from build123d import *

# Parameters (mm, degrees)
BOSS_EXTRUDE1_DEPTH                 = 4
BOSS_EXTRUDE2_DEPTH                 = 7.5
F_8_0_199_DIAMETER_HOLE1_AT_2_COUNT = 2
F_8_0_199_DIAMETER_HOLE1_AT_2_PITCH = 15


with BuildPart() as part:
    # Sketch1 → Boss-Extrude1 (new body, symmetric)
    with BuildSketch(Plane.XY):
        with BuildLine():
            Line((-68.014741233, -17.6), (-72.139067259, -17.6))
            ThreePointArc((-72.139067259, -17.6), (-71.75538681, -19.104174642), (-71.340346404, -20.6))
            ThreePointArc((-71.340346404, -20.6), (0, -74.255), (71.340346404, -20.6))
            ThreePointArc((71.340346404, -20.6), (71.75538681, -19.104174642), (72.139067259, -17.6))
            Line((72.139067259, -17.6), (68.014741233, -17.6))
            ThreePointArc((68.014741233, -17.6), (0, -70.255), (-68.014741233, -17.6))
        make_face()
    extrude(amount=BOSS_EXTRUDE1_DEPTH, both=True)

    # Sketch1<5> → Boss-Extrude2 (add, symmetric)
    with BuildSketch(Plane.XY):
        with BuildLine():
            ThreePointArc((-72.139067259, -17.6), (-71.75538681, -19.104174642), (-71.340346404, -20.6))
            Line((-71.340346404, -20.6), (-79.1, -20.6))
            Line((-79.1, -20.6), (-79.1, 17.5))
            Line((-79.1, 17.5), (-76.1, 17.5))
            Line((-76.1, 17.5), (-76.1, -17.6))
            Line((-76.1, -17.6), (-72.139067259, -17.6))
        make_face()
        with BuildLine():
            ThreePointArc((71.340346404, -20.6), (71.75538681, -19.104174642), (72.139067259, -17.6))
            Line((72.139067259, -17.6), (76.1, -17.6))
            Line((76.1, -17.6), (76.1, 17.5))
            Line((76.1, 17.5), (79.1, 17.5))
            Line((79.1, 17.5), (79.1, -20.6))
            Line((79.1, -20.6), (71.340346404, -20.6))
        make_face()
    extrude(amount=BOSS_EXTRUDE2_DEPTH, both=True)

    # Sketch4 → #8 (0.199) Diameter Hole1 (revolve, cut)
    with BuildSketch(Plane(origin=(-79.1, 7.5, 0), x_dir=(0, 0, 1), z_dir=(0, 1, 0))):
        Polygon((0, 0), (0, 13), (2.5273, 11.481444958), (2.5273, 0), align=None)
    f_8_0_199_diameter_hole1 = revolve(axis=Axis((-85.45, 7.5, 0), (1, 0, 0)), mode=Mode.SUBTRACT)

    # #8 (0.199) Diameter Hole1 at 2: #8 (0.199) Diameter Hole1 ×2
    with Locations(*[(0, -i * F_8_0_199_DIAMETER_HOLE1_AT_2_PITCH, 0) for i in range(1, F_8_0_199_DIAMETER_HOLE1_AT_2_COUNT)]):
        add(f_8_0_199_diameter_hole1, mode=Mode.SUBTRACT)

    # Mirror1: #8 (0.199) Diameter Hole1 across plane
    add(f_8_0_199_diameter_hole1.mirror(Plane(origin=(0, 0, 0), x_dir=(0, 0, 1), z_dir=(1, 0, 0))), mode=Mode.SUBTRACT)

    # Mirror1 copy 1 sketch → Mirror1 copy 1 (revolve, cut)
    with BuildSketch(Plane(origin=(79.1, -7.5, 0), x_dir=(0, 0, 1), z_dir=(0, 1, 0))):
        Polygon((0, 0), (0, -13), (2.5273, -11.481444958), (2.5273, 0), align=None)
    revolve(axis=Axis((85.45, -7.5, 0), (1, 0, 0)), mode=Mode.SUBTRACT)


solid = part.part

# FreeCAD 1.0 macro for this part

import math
import FreeCAD as App
import Part
import Sketcher

V = App.Vector
Q = App.Units.Quantity

doc = App.newDocument("Part")
body = doc.addObject("PartDesign::Body", "Body")

# Sketch on XY plane
sketch1 = body.newObject("Sketcher::SketchObject", "Sketch")
sketch1.AttachmentSupport = (doc.getObject("XY_Plane"), [""])
sketch1.MapMode = "FlatFace"
sketch1.addGeometry(Part.LineSegment(V(-68, -17.6, 0), V(-72.1, -17.6, 0)), False)
sketch1.addGeometry(Part.ArcOfCircle(Part.Circle(V(0, 0, 0), V(0, 0, 1), 74.3), math.radians(-166.29), math.radians(-163.89)), False)
sketch1.addGeometry(Part.ArcOfCircle(Part.Circle(V(0, 0, 0), V(0, 0, 1), 74.3), math.radians(-164), math.radians(-16)), False)
sketch1.addGeometry(Part.ArcOfCircle(Part.Circle(V(0, 0, 0), V(0, 0, 1), 74.3), math.radians(-16.11), math.radians(-13.71)), False)
sketch1.addGeometry(Part.LineSegment(V(72.1, -17.6, 0), V(68, -17.6, 0)), False)
sketch1.addGeometry(Part.ArcOfCircle(Part.Circle(V(0, 0, 0), V(0, 0, 1), 70.3), math.radians(-165), math.radians(-15)), False)
sketch1.addConstraint(Sketcher.Constraint("Coincident", 0, 2, 1, 1))
sketch1.addConstraint(Sketcher.Constraint("Tangent", 1, 2, 2, 1))
sketch1.addConstraint(Sketcher.Constraint("Tangent", 2, 2, 3, 1))
sketch1.addConstraint(Sketcher.Constraint("Coincident", 3, 2, 4, 1))
sketch1.addConstraint(Sketcher.Constraint("Coincident", 4, 2, 5, 2))
sketch1.addConstraint(Sketcher.Constraint("Coincident", 5, 1, 0, 1))
sketch1.addConstraint(Sketcher.Constraint("Horizontal", 0))
sketch1.addConstraint(Sketcher.Constraint("Horizontal", 4))
sketch1.addConstraint(Sketcher.Constraint("Coincident", 1, 3, -1, 1))
sketch1.addConstraint(Sketcher.Constraint("Coincident", 3, 3, -1, 1))
sketch1.addConstraint(Sketcher.Constraint("Coincident", 5, 3, -1, 1))
sketch1.addConstraint(Sketcher.Constraint("Horizontal", 1, 2, 2, 2))
sketch1.addConstraint(Sketcher.Constraint("Horizontal", 0, 2, 3, 2))
sketch1.addConstraint(Sketcher.Constraint("Radius", 1, Q("74.255 mm")))
sketch1.addConstraint(Sketcher.Constraint("Radius", 5, Q("70.255 mm")))
sketch1.addConstraint(Sketcher.Constraint("DistanceY", 1, 2, 0, 2, Q("3 mm")))
sketch1.addConstraint(Sketcher.Constraint("DistanceY", 0, 2, -1, 1, Q("17.6 mm")))
pad1 = body.newObject("PartDesign::Pad", "Pad")
pad1.Profile = sketch1
pad1.Length = 8
pad1.Midplane = True

# Sketch on XY plane
sketch2 = body.newObject("Sketcher::SketchObject", "Sketch001")
sketch2.AttachmentSupport = (doc.getObject("XY_Plane"), [""])
sketch2.MapMode = "FlatFace"
sketch2.addGeometry(Part.ArcOfCircle(Part.Circle(V(0, 0, 0), V(0, 0, 1), 74.3), math.radians(-166.29), math.radians(-163.89)), False)
sketch2.addGeometry(Part.LineSegment(V(-72.1, -17.6, 0), V(-76.1, -17.6, 0)), False)
sketch2.addGeometry(Part.LineSegment(V(-76.1, -17.6, 0), V(-76.1, 17.5, 0)), False)
sketch2.addGeometry(Part.LineSegment(V(-76.1, 17.5, 0), V(-79.1, 17.5, 0)), False)
sketch2.addGeometry(Part.LineSegment(V(-79.1, 17.5, 0), V(-79.1, -20.6, 0)), False)
sketch2.addGeometry(Part.LineSegment(V(-79.1, -20.6, 0), V(-71.3, -20.6, 0)), False)
sketch2.addGeometry(Part.ArcOfCircle(Part.Circle(V(0, 0, 0), V(0, 0, 1), 74.3), math.radians(-16.11), math.radians(-13.71)), False)
sketch2.addGeometry(Part.LineSegment(V(71.3, -20.6, 0), V(79.1, -20.6, 0)), False)
sketch2.addGeometry(Part.LineSegment(V(79.1, -20.6, 0), V(79.1, 17.5, 0)), False)
sketch2.addGeometry(Part.LineSegment(V(79.1, 17.5, 0), V(76.1, 17.5, 0)), False)
sketch2.addGeometry(Part.LineSegment(V(76.1, 17.5, 0), V(76.1, -17.6, 0)), False)
sketch2.addGeometry(Part.LineSegment(V(76.1, -17.6, 0), V(72.1, -17.6, 0)), False)
sketch2.addConstraint(Sketcher.Constraint("Coincident", 0, 1, 1, 1))
sketch2.addConstraint(Sketcher.Constraint("Coincident", 1, 2, 2, 1))
sketch2.addConstraint(Sketcher.Constraint("Coincident", 2, 2, 3, 1))
sketch2.addConstraint(Sketcher.Constraint("Coincident", 3, 2, 4, 1))
sketch2.addConstraint(Sketcher.Constraint("Coincident", 4, 2, 5, 1))
sketch2.addConstraint(Sketcher.Constraint("Coincident", 5, 2, 0, 2))
sketch2.addConstraint(Sketcher.Constraint("Coincident", 6, 1, 7, 1))
sketch2.addConstraint(Sketcher.Constraint("Coincident", 7, 2, 8, 1))
sketch2.addConstraint(Sketcher.Constraint("Coincident", 8, 2, 9, 1))
sketch2.addConstraint(Sketcher.Constraint("Coincident", 9, 2, 10, 1))
sketch2.addConstraint(Sketcher.Constraint("Coincident", 10, 2, 11, 1))
sketch2.addConstraint(Sketcher.Constraint("Coincident", 11, 2, 6, 2))
sketch2.addConstraint(Sketcher.Constraint("Horizontal", 1))
sketch2.addConstraint(Sketcher.Constraint("Vertical", 2))
sketch2.addConstraint(Sketcher.Constraint("Horizontal", 3))
sketch2.addConstraint(Sketcher.Constraint("Vertical", 4))
sketch2.addConstraint(Sketcher.Constraint("Horizontal", 5))
sketch2.addConstraint(Sketcher.Constraint("Horizontal", 7))
sketch2.addConstraint(Sketcher.Constraint("Vertical", 8))
sketch2.addConstraint(Sketcher.Constraint("Horizontal", 9))
sketch2.addConstraint(Sketcher.Constraint("Vertical", 10))
sketch2.addConstraint(Sketcher.Constraint("Horizontal", 11))
sketch2.addConstraint(Sketcher.Constraint("Coincident", 0, 3, -1, 1))
sketch2.addConstraint(Sketcher.Constraint("Coincident", 6, 3, -1, 1))
sketch2.addConstraint(Sketcher.Constraint("Equal", 0, 6))
sketch2.addConstraint(Sketcher.Constraint("Symmetric", 4, 2, 7, 2, -2))
sketch2.addConstraint(Sketcher.Constraint("Symmetric", 2, 2, 9, 2, -2))
sketch2.addConstraint(Sketcher.Constraint("Horizontal", 1, 2, 10, 2))
sketch2.addConstraint(Sketcher.Constraint("DistanceX", 3, 2, 3, 1, Q("3 mm")))
sketch2.addConstraint(Sketcher.Constraint("DistanceY", 2, 1, 2, 2, Q("35.1 mm")))
sketch2.addConstraint(Sketcher.Constraint("DistanceY", 4, 2, 4, 1, Q("38.1 mm")))
sketch2.addConstraint(Sketcher.Constraint("Radius", 0, Q("74.255 mm")))
sketch2.addConstraint(Sketcher.Constraint("DistanceY", 0, 1, -1, 1, Q("17.6 mm")))
sketch2.addConstraint(Sketcher.Constraint("DistanceX", 1, 2, -1, 1, Q("76.1 mm")))
pad2 = body.newObject("PartDesign::Pad", "Pad001")
pad2.Profile = sketch2
pad2.Length = 15
pad2.Midplane = True

# Sketch on XZ plane
sketch3 = body.newObject("Sketcher::SketchObject", "Sketch002")
sketch3.AttachmentSupport = (doc.getObject("XZ_Plane"), [""])
sketch3.MapMode = "FlatFace"
sketch3.AttachmentOffset = App.Placement(V(0, 0, -7.5), App.Rotation())
sketch3.addGeometry(Part.LineSegment(V(-66.1, 0, 0), V(-79.1, 0, 0)), False)
sketch3.addGeometry(Part.LineSegment(V(-79.1, 0, 0), V(-79.1, 2.5, 0)), False)
sketch3.addGeometry(Part.LineSegment(V(-79.1, 2.5, 0), V(-67.6, 2.5, 0)), False)
sketch3.addGeometry(Part.LineSegment(V(-67.6, 2.5, 0), V(-66.1, 0, 0)), False)
sketch3.addConstraint(Sketcher.Constraint("Coincident", 0, 2, 1, 1))
sketch3.addConstraint(Sketcher.Constraint("Coincident", 1, 2, 2, 1))
sketch3.addConstraint(Sketcher.Constraint("Coincident", 2, 2, 3, 1))
sketch3.addConstraint(Sketcher.Constraint("Coincident", 3, 2, 0, 1))
sketch3.addConstraint(Sketcher.Constraint("Horizontal", 0))
sketch3.addConstraint(Sketcher.Constraint("Vertical", 1))
sketch3.addConstraint(Sketcher.Constraint("Horizontal", 2))
sketch3.addConstraint(Sketcher.Constraint("PointOnObject", 0, 2, -1))
sketch3.addConstraint(Sketcher.Constraint("DistanceX", 0, 2, 0, 1, Q("13 mm")))
sketch3.addConstraint(Sketcher.Constraint("Angle", 3, Q("-59 deg")))
sketch3.addConstraint(Sketcher.Constraint("DistanceX", 0, 2, -1, 1, Q("79.1 mm")))
sketch3.addConstraint(Sketcher.Constraint("DistanceY", 1, 1, 1, 2, Q("2.5273 mm")))
groove = body.newObject("PartDesign::Groove", "Groove")
groove.Profile = sketch3
groove.ReferenceAxis = (sketch3, ["H_Axis"])
groove.Angle = 360
doc.recompute()

linearpattern = body.newObject("PartDesign::LinearPattern", "LinearPattern")
linearpattern.Originals = [groove]
linearpattern.Direction = (doc.getObject("Y_Axis"), [""])
linearpattern.Mode = "offset"
linearpattern.Offset = 15
linearpattern.Occurrences = 2
linearpattern.Reversed = True
body.Tip = linearpattern
doc.recompute()

mirrored = body.newObject("PartDesign::Mirrored", "Mirrored")
mirrored.Originals = [groove]
mirrored.MirrorPlane = (doc.getObject("YZ_Plane"), [""])
body.Tip = mirrored

# Sketch on XZ plane
sketch4 = body.newObject("Sketcher::SketchObject", "Sketch003")
sketch4.AttachmentSupport = (doc.getObject("XZ_Plane"), [""])
sketch4.MapMode = "FlatFace"
sketch4.AttachmentOffset = App.Placement(V(0, 0, 7.5), App.Rotation())
sketch4.addGeometry(Part.LineSegment(V(79.1, 0, 0), V(66.1, 0, 0)), False)
sketch4.addGeometry(Part.LineSegment(V(66.1, 0, 0), V(67.6, 2.5, 0)), False)
sketch4.addGeometry(Part.LineSegment(V(67.6, 2.5, 0), V(79.1, 2.5, 0)), False)
sketch4.addGeometry(Part.LineSegment(V(79.1, 2.5, 0), V(79.1, 0, 0)), False)
sketch4.addConstraint(Sketcher.Constraint("Coincident", 0, 2, 1, 1))
sketch4.addConstraint(Sketcher.Constraint("Coincident", 1, 2, 2, 1))
sketch4.addConstraint(Sketcher.Constraint("Coincident", 2, 2, 3, 1))
sketch4.addConstraint(Sketcher.Constraint("Coincident", 3, 2, 0, 1))
sketch4.addConstraint(Sketcher.Constraint("Horizontal", 0))
sketch4.addConstraint(Sketcher.Constraint("Horizontal", 2))
sketch4.addConstraint(Sketcher.Constraint("Vertical", 3))
sketch4.addConstraint(Sketcher.Constraint("PointOnObject", 0, 2, -1))
sketch4.addConstraint(Sketcher.Constraint("DistanceX", 0, 2, 0, 1, Q("13 mm")))
sketch4.addConstraint(Sketcher.Constraint("Angle", 1, Q("59 deg")))
sketch4.addConstraint(Sketcher.Constraint("DistanceX", -1, 1, 0, 2, Q("66.1 mm")))
sketch4.addConstraint(Sketcher.Constraint("DistanceY", 3, 2, 3, 1, Q("2.5273 mm")))
groove2 = body.newObject("PartDesign::Groove", "Groove001")
groove2.Profile = sketch4
groove2.ReferenceAxis = (sketch4, ["H_Axis"])
groove2.Angle = 360

doc.recompute()
